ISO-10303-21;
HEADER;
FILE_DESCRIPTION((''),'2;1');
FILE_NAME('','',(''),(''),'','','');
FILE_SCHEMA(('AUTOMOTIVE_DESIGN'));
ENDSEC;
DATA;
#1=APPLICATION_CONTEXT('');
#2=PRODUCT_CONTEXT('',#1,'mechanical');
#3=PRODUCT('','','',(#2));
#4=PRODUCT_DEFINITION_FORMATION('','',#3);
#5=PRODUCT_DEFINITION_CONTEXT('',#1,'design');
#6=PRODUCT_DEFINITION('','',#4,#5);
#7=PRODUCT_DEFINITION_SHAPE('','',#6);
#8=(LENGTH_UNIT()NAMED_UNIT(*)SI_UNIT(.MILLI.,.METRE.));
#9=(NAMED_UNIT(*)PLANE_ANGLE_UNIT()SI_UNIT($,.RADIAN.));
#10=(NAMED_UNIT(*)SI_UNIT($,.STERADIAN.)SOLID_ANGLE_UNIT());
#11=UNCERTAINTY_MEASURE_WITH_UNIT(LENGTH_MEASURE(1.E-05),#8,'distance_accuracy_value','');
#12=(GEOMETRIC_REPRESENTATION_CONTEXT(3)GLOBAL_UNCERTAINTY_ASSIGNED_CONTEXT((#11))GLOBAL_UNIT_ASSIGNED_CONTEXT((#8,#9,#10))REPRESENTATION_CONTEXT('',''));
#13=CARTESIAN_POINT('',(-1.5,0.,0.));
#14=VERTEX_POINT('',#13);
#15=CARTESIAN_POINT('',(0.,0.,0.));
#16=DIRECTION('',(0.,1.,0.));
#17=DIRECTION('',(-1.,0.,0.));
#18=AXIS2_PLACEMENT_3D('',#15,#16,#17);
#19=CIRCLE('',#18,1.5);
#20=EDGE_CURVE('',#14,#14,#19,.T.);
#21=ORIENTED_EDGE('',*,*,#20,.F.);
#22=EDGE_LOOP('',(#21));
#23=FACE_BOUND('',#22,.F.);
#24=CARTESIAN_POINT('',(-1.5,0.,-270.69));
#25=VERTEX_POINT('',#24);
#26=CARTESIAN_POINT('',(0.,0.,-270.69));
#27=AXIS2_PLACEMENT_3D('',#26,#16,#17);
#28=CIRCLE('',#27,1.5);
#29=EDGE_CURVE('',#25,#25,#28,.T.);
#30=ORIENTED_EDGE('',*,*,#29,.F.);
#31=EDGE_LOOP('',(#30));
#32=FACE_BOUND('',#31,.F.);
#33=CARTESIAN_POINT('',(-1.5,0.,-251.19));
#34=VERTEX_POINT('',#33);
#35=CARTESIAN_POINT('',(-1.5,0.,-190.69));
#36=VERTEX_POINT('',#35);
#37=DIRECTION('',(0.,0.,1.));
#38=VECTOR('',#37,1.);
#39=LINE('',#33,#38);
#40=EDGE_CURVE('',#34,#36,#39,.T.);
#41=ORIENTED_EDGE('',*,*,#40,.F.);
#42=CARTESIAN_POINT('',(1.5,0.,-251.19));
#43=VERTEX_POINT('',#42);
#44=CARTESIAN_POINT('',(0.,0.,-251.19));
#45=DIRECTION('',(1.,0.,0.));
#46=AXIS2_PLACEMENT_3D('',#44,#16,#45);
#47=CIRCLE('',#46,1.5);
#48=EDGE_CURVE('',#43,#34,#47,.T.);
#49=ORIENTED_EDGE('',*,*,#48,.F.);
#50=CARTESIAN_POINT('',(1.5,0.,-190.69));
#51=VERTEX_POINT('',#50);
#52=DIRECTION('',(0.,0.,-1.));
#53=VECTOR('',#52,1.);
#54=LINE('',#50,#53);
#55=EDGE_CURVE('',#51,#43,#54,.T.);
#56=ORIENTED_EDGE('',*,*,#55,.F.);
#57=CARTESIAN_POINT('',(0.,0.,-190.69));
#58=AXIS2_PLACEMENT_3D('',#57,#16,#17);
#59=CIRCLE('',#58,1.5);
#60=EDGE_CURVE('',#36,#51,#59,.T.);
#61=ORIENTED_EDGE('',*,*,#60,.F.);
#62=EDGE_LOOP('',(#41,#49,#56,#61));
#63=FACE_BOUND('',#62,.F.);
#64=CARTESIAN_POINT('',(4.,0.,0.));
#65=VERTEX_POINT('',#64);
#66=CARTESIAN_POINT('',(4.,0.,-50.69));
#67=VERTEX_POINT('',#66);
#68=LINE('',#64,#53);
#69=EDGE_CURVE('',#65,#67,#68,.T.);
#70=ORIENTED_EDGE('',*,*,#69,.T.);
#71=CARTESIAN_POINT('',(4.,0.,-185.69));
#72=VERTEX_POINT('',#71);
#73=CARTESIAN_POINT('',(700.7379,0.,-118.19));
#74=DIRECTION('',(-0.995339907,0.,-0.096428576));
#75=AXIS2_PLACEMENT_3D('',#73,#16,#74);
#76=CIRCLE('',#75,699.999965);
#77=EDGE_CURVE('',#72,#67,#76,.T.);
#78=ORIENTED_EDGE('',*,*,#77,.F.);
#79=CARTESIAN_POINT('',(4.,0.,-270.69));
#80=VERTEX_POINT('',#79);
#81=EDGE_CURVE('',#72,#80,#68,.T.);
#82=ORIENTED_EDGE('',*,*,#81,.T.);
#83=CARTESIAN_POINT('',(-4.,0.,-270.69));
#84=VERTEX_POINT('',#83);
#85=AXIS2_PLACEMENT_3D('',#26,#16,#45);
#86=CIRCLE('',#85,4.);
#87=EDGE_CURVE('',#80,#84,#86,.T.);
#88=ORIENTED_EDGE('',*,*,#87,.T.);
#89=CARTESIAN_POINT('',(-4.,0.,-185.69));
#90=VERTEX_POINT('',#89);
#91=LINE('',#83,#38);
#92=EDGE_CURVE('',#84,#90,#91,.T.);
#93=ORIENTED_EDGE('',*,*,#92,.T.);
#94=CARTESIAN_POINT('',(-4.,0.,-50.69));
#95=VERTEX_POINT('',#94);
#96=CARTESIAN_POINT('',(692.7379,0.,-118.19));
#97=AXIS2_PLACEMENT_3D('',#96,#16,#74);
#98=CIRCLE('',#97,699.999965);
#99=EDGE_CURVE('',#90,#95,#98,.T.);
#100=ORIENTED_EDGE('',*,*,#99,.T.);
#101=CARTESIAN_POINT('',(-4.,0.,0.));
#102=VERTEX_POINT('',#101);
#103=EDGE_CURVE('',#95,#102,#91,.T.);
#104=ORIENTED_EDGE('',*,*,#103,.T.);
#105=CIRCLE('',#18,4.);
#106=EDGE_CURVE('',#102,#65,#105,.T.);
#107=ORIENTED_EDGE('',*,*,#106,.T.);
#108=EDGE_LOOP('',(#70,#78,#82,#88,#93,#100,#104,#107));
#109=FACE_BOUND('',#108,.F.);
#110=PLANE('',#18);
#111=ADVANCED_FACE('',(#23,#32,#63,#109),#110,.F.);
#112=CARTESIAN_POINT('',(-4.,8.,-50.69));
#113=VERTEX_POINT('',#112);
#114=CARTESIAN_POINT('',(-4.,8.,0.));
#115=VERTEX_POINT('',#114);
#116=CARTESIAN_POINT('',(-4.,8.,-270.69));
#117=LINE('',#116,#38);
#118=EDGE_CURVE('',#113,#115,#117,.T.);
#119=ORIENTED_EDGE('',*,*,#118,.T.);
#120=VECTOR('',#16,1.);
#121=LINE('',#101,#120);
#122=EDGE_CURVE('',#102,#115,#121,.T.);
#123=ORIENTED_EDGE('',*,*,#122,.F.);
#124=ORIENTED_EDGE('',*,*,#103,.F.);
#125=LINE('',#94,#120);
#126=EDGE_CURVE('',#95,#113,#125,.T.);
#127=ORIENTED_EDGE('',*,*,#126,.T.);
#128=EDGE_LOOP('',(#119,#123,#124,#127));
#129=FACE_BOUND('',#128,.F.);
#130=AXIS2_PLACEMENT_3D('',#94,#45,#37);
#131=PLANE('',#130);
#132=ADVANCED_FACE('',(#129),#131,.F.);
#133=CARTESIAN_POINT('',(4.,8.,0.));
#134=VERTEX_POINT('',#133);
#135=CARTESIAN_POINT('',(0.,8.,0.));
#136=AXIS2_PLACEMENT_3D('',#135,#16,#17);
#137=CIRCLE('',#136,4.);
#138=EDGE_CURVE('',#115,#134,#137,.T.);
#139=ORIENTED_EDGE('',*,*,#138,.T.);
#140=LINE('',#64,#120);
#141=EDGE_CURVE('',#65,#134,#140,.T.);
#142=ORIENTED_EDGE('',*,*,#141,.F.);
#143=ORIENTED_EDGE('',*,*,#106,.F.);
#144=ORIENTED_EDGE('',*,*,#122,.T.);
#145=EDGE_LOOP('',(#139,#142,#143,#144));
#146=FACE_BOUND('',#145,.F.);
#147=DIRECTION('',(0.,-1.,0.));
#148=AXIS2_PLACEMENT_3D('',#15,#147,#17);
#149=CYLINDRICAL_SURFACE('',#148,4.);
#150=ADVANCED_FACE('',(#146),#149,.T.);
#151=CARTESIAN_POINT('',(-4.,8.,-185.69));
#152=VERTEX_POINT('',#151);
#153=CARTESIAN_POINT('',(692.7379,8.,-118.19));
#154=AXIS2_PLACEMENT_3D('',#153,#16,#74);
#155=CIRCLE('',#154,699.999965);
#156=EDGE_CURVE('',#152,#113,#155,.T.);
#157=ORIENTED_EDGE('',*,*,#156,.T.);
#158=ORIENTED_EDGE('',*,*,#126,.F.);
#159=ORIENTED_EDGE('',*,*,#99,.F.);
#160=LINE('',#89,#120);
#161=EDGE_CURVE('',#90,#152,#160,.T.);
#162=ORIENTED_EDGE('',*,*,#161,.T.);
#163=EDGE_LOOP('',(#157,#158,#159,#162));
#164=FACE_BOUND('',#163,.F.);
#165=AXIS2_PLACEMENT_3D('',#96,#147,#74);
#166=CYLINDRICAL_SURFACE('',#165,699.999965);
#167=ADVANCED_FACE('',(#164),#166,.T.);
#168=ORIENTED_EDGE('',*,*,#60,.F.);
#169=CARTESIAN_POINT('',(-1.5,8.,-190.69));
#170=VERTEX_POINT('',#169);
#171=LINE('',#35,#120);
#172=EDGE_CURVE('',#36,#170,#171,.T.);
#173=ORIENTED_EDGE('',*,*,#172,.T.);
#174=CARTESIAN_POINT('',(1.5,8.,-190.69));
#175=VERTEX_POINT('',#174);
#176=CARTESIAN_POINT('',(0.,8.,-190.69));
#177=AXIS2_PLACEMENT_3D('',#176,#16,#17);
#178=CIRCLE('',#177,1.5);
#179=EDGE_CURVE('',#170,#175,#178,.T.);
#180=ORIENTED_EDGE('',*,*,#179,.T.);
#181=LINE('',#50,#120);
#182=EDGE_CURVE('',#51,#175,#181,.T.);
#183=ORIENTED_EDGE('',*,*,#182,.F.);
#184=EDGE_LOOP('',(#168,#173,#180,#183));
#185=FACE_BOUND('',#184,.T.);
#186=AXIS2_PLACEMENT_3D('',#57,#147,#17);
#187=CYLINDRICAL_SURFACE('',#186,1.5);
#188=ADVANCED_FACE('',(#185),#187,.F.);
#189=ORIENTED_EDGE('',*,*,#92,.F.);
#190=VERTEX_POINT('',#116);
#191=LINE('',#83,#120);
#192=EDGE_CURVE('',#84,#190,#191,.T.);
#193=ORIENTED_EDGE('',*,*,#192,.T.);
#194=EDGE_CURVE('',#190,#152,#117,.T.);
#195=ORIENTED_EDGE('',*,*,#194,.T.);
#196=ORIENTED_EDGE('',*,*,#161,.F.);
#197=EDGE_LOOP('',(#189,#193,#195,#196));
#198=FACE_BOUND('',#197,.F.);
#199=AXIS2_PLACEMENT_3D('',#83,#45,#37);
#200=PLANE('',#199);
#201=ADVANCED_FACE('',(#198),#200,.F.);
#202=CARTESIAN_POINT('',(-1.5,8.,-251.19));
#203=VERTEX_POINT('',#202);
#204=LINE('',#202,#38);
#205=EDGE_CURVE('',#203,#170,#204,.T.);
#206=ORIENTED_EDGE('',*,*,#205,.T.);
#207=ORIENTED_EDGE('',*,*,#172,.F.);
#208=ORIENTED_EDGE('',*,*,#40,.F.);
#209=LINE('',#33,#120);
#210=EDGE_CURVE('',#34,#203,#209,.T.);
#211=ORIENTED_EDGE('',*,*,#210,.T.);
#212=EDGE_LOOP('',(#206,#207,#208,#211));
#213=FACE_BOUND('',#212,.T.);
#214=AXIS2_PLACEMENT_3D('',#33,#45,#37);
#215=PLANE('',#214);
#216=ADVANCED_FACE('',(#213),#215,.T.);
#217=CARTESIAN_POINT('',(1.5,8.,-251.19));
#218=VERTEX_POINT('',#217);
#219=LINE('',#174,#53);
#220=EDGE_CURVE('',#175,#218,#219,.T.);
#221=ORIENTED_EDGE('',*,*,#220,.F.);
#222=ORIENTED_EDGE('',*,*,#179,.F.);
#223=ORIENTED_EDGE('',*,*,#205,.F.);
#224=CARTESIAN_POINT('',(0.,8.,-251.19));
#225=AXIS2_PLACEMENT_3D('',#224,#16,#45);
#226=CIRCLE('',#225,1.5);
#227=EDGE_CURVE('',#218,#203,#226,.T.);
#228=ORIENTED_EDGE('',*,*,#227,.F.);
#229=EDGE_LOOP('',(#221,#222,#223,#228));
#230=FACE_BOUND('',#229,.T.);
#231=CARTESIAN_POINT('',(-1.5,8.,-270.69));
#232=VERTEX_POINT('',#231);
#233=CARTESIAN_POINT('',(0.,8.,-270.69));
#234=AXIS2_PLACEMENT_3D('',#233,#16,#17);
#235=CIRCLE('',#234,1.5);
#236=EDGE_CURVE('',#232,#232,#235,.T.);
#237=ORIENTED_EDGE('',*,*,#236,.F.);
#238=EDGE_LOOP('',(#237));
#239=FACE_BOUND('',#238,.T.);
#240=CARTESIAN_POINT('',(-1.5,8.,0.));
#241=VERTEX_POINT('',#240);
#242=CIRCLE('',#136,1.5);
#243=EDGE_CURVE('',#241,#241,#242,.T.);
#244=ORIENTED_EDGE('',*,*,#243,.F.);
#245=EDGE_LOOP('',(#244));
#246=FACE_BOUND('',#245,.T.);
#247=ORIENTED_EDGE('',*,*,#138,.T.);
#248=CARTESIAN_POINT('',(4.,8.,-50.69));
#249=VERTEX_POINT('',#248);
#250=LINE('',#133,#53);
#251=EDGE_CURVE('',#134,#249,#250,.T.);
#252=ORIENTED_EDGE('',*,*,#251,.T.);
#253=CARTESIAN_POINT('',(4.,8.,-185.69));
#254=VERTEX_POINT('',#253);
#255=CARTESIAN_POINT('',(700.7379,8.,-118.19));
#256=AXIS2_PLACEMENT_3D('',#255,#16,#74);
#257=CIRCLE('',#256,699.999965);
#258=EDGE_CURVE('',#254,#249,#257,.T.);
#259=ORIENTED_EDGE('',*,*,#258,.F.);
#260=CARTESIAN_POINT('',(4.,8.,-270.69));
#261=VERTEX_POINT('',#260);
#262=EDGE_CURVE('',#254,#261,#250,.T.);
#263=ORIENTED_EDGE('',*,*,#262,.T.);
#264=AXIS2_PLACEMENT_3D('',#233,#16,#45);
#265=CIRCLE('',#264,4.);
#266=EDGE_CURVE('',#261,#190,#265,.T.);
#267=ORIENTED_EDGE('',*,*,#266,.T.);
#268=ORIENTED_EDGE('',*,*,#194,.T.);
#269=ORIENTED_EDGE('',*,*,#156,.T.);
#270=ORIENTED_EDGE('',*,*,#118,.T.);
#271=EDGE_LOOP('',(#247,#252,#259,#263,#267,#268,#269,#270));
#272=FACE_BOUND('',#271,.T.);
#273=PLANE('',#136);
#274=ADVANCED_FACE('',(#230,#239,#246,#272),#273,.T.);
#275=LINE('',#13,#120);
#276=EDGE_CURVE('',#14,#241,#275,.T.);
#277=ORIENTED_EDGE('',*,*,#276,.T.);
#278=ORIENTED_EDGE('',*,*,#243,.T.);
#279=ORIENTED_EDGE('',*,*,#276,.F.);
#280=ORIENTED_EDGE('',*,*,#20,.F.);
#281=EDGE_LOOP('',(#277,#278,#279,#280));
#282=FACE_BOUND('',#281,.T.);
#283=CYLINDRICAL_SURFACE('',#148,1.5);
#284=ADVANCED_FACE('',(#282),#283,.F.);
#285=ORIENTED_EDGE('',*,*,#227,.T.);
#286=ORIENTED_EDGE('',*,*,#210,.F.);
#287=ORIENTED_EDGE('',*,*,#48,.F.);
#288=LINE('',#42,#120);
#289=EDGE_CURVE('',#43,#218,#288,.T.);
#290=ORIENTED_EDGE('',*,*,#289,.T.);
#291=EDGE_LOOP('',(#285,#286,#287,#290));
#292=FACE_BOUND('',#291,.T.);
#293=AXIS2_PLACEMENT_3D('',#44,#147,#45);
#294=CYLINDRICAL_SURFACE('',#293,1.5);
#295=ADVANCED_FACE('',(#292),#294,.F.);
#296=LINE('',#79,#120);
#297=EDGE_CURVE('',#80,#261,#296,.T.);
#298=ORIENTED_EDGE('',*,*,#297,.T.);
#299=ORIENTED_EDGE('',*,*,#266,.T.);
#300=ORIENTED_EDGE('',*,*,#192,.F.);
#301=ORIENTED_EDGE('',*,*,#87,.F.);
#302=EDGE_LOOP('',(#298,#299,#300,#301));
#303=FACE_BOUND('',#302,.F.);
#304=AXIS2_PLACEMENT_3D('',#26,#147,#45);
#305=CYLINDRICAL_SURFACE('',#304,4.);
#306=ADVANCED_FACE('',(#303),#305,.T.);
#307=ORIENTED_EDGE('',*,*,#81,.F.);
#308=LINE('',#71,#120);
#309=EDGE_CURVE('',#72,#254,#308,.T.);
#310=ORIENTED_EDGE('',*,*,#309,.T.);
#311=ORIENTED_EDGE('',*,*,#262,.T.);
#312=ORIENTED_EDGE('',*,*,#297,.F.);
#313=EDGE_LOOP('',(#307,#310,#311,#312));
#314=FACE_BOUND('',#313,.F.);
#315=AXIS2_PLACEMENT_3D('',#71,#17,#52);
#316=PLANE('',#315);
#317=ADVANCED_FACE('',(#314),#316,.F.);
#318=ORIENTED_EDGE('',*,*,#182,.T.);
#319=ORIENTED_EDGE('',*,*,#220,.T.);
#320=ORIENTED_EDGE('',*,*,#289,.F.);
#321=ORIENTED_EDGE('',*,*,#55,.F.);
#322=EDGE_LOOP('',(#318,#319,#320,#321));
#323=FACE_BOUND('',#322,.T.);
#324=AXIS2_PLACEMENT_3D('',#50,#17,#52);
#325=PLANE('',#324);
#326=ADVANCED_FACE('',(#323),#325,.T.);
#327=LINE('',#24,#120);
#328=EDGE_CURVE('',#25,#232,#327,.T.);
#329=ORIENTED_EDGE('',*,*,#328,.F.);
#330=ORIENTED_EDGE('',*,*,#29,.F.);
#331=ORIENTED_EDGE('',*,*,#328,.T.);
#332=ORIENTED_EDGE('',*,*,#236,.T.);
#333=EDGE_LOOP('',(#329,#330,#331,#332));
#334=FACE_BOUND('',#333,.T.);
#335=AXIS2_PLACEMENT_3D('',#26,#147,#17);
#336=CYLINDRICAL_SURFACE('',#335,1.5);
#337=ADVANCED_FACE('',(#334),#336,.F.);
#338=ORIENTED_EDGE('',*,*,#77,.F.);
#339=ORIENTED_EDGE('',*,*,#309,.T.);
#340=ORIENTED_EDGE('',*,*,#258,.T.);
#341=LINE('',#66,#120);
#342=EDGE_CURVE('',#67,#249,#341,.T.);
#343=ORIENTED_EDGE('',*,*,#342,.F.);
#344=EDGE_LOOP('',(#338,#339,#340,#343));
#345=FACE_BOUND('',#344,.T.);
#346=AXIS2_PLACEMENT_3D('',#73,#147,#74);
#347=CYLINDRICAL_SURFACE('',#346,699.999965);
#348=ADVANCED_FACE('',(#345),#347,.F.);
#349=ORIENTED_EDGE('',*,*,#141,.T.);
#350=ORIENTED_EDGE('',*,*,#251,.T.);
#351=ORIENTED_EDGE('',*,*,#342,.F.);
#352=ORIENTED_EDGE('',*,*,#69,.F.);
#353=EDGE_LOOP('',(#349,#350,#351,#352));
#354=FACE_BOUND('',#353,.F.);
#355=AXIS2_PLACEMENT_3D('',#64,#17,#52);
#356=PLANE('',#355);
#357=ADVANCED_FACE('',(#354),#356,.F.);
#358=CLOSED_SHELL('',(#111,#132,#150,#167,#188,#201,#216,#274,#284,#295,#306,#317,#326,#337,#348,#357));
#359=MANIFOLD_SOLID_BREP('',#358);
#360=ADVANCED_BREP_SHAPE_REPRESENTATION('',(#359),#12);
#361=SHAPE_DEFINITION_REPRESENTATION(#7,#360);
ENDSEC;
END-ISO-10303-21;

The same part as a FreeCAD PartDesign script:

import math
import FreeCAD as App
import Part
import Sketcher
Q = App.Units.Quantity

doc = App.newDocument("Part")
params = doc.addObject("Spreadsheet::Sheet", "Params")
for row, (alias, value) in enumerate([
    ("sketch1_diameter", "3 mm"),
    ("sketch1_radius", "4 mm"),
    ("sketch1_radius2", "700 mm"),
    ("sketch1_height", "85 mm"),
    ("pad1_length", "8 mm"),
], start=1):
    params.set(f"A{row}", alias)
    params.set(f"B{row}", "=" + value)
    params.setAlias(f"B{row}", alias)

body = doc.addObject("PartDesign::Body", "Body")

sketch1 = body.newObject("Sketcher::SketchObject", "Sketch")
sketch1.AttachmentSupport = (doc.getObject("XZ_Plane"), [""])
sketch1.MapMode = "FlatFace"
sketch1.addGeometry([
    Part.ArcOfCircle(Part.Circle(App.Vector(0, 0, 0), App.Vector(0, 0, 1), 4), math.radians(0), math.radians(180)),
    Part.LineSegment(App.Vector(4, 0, 0), App.Vector(4, -50.69, 0)),
    Part.ArcOfCircle(Part.Circle(App.Vector(700.7379, -118.19, 0), App.Vector(0, 0, 1), 699.999965), math.radians(174.466451), math.radians(185.533549)),
    Part.LineSegment(App.Vector(4, -185.69, 0), App.Vector(4, -270.69, 0)),
    Part.ArcOfCircle(Part.Circle(App.Vector(0, -270.69, 0), App.Vector(0, 0, 1), 4), math.radians(180), math.radians(360)),
    Part.LineSegment(App.Vector(-4, -270.69, 0), App.Vector(-4, -185.69, 0)),
    Part.ArcOfCircle(Part.Circle(App.Vector(692.7379, -118.19, 0), App.Vector(0, 0, 1), 699.999965), math.radians(174.466451), math.radians(185.533549)),
    Part.LineSegment(App.Vector(-4, -50.69, 0), App.Vector(-4, 0, 0)),
    Part.Circle(App.Vector(0, -270.69, 0), App.Vector(0, 0, 1), 1.5),
    Part.LineSegment(App.Vector(-1.5, -190.69, 0), App.Vector(-1.5, -251.19, 0)),
    Part.ArcOfCircle(Part.Circle(App.Vector(0, -251.19, 0), App.Vector(0, 0, 1), 1.5), math.radians(180), math.radians(360)),
    Part.LineSegment(App.Vector(1.5, -251.19, 0), App.Vector(1.5, -190.69, 0)),
    Part.ArcOfCircle(Part.Circle(App.Vector(0, -190.69, 0), App.Vector(0, 0, 1), 1.5), math.radians(0), math.radians(180)),
    Part.Circle(App.Vector(0, 0, 0), App.Vector(0, 0, 1), 1.5),
], False)
sketch1.addConstraint([
    Sketcher.Constraint("Tangent", 0, 1, 1, 1),
    Sketcher.Constraint("Coincident", 1, 2, 2, 1),
    Sketcher.Constraint("Coincident", 2, 2, 3, 1),
    Sketcher.Constraint("Tangent", 3, 2, 4, 2),
    Sketcher.Constraint("Tangent", 4, 1, 5, 1),
    Sketcher.Constraint("Coincident", 5, 2, 6, 2),
    Sketcher.Constraint("Coincident", 6, 1, 7, 1),
    Sketcher.Constraint("Tangent", 7, 2, 0, 2),
    Sketcher.Constraint("Tangent", 9, 2, 10, 1),
    Sketcher.Constraint("Tangent", 10, 2, 11, 1),
    Sketcher.Constraint("Tangent", 11, 2, 12, 1),
    Sketcher.Constraint("Tangent", 12, 2, 9, 1),
    Sketcher.Constraint("Vertical", 1),
    Sketcher.Constraint("Vertical", 3),
    Sketcher.Constraint("Vertical", 5),
    Sketcher.Constraint("Vertical", 7),
    Sketcher.Constraint("Vertical", 9),
    Sketcher.Constraint("Vertical", 11),
    Sketcher.Constraint("Coincident", 0, 3, -1, 1),
    Sketcher.Constraint("Coincident", 13, 3, -1, 1),
    Sketcher.Constraint("Coincident", 8, 3, 4, 3),
    Sketcher.Constraint("Equal", 0, 4),
    Sketcher.Constraint("Equal", 2, 6),
    Sketcher.Constraint("Equal", 8, 10),
    Sketcher.Constraint("Equal", 12, 13),
    Sketcher.Constraint("PointOnObject", 4, 3, -2),
    Sketcher.Constraint("PointOnObject", 10, 3, -2),
    Sketcher.Constraint("Horizontal", 2, 3, 6, 3),
    Sketcher.Constraint("Equal", 3, 5),
    Sketcher.Constraint("Diameter", 8, Q("3 mm")),
    Sketcher.Constraint("Radius", 0, Q("4 mm")),
    Sketcher.Constraint("Radius", 2, Q("700 mm")),
    Sketcher.Constraint("DistanceY", 3, 2, 3, 1, Q("85 mm")),
    Sketcher.Constraint("DistanceY", 4, 3, 12, 3, Q("80 mm")),
    Sketcher.Constraint("DistanceY", 4, 3, 10, 3, Q("19.5 mm")),
    Sketcher.Constraint("DistanceY", 4, 3, -1, 1, Q("270.69 mm")),
    Sketcher.Constraint("DistanceY", 10, 3, 6, 3, Q("133 mm")),
])
sketch1.setExpression("Constraints[29]", "Params.sketch1_diameter")
sketch1.setExpression("Constraints[30]", "Params.sketch1_radius")
sketch1.setExpression("Constraints[31]", "Params.sketch1_radius2")
sketch1.setExpression("Constraints[32]", "Params.sketch1_height")
pad1 = body.newObject("PartDesign::Pad", "Pad")
pad1.Profile = sketch1
pad1.setExpression("Length", "Params.pad1_length")
pad1.Reversed = True

doc.recompute()
